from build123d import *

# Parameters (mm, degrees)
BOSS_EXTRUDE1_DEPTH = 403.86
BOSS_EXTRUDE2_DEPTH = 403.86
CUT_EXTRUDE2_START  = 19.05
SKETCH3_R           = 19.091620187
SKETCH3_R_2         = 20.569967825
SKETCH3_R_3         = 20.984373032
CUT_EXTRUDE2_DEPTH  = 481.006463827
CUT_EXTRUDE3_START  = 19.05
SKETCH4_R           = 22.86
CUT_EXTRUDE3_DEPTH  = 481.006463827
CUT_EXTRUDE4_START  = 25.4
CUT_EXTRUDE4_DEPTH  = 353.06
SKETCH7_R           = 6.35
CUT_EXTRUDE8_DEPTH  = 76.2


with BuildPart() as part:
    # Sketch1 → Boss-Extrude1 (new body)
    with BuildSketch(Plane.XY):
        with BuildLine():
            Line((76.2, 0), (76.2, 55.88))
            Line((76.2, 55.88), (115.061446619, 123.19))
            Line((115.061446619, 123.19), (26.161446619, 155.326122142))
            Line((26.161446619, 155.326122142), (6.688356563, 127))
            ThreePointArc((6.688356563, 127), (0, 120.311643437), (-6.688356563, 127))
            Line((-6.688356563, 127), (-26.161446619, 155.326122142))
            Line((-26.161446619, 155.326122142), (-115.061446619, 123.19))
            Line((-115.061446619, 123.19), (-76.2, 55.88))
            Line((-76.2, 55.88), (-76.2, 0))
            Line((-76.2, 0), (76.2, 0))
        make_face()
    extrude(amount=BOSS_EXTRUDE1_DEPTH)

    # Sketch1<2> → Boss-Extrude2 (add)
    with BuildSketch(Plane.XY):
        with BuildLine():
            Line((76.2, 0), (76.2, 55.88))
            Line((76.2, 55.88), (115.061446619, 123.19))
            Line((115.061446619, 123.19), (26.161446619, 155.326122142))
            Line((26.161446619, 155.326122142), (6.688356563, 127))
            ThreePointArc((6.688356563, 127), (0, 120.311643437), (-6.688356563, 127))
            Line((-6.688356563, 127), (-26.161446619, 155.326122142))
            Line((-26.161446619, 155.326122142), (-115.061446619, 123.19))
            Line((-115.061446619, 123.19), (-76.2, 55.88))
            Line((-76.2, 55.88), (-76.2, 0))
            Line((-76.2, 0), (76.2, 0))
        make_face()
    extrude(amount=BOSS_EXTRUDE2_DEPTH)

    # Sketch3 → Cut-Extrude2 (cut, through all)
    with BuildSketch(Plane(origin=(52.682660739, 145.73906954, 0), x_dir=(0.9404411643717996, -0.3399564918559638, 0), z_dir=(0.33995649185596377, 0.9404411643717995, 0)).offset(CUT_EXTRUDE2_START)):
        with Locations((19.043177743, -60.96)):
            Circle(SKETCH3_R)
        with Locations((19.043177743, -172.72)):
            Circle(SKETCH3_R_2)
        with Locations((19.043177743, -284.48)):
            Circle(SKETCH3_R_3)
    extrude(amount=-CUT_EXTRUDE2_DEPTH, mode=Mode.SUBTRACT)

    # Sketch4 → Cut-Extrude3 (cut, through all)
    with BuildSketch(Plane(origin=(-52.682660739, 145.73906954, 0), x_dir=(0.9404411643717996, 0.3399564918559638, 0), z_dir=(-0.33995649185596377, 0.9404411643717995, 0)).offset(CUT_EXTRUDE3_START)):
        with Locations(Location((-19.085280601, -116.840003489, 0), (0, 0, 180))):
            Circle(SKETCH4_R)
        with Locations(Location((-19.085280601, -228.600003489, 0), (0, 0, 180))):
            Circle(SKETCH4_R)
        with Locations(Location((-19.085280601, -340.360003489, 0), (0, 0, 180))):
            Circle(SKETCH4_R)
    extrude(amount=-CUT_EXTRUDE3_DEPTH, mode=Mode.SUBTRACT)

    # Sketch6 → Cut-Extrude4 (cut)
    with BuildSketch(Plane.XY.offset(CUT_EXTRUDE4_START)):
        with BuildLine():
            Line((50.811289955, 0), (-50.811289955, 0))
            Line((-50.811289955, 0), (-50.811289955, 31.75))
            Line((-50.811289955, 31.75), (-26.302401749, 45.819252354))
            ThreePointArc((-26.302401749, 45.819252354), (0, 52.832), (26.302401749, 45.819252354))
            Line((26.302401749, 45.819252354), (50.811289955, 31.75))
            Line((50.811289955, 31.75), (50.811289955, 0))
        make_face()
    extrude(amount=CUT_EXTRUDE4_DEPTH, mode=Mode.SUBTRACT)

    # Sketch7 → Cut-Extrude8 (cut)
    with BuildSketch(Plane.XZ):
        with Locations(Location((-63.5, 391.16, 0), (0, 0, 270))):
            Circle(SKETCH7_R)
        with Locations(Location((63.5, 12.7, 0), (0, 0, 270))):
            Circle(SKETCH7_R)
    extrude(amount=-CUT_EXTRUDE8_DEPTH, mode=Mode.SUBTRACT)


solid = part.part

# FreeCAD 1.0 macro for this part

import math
import FreeCAD as App
import Part
import Sketcher
from FreeCAD import Vector
Q = App.Units.Quantity

doc = App.newDocument("Part")
body = doc.addObject("PartDesign::Body", "Body")

# Sketch on XY plane
sketch1 = body.newObject("Sketcher::SketchObject", "Sketch")
sketch1.AttachmentSupport = (doc.getObject("XY_Plane"), [""])
sketch1.MapMode = "FlatFace"
sketch1.addGeometry([
    Part.LineSegment(Vector(76, 0, 0), Vector(76, 56, 0)),  # 0
    Part.LineSegment(Vector(76, 56, 0), Vector(115, 123, 0)),  # 1
    Part.LineSegment(Vector(115, 123, 0), Vector(26, 155, 0)),  # 2
    Part.LineSegment(Vector(26, 155, 0), Vector(7, 127, 0)),  # 3
    Part.ArcOfCircle(Part.Circle(Vector(0, 127, 0), Vector(0, 0, 1), 7), math.radians(180), math.radians(360)),  # 4
    Part.LineSegment(Vector(-7, 127, 0), Vector(-26, 155, 0)),  # 5
    Part.LineSegment(Vector(-26, 155, 0), Vector(-115, 123, 0)),  # 6
    Part.LineSegment(Vector(-115, 123, 0), Vector(-76, 56, 0)),  # 7
    Part.LineSegment(Vector(-76, 56, 0), Vector(-76, 0, 0)),  # 8
    Part.LineSegment(Vector(-76, 0, 0), Vector(76, 0, 0)),  # 9
], False)
sketch1.addConstraint([
    Sketcher.Constraint("Coincident", 0, 2, 1, 1),
    Sketcher.Constraint("Coincident", 1, 2, 2, 1),
    Sketcher.Constraint("Coincident", 2, 2, 3, 1),
    Sketcher.Constraint("Coincident", 3, 2, 4, 2),
    Sketcher.Constraint("Coincident", 4, 1, 5, 1),
    Sketcher.Constraint("Coincident", 5, 2, 6, 1),
    Sketcher.Constraint("Coincident", 6, 2, 7, 1),
    Sketcher.Constraint("Coincident", 7, 2, 8, 1),
    Sketcher.Constraint("Coincident", 8, 2, 9, 1),
    Sketcher.Constraint("Coincident", 9, 2, 0, 1),
    Sketcher.Constraint("Vertical", 0),
    Sketcher.Constraint("Vertical", 8),
    Sketcher.Constraint("Horizontal", 9),
    Sketcher.Constraint("Symmetric", 8, 2, 9, 2, -1, 1),
    Sketcher.Constraint("Symmetric", 3, 2, 4, 1, -2),
    Sketcher.Constraint("Symmetric", 2, 2, 5, 2, -2),
    Sketcher.Constraint("Symmetric", 1, 2, 6, 2, -2),
    Sketcher.Constraint("Horizontal", 4, 3, 3, 2),
    Sketcher.Constraint("Horizontal", 0, 2, 7, 2),
    Sketcher.Constraint("DistanceX", 9, 1, 9, 2, Q("6 in")),
    Sketcher.Constraint("DistanceY", 0, 1, 0, 2, Q("2.2 in")),
    Sketcher.Constraint("DistanceY", -1, 1, 4, 3, Q("5 in")),
    Sketcher.Constraint("Angle", 1, Q("60 deg")),
    Sketcher.Constraint("DistanceX", 2, 2, 1, 2, Q("3.5 in")),
    Sketcher.Constraint("DistanceY", -1, 1, 1, 2, Q("4.85 in")),
    Sketcher.Constraint("Radius", 4, 6.688357),
    Sketcher.Constraint("Distance", 3, 34.373979),
])
pad1 = body.newObject("PartDesign::Pad", "Pad")
pad1.Profile = sketch1
pad1.Length = Q("15.9 in")

# Sketch on XY plane
sketch2 = body.newObject("Sketcher::SketchObject", "Sketch001")
sketch2.AttachmentSupport = (doc.getObject("XY_Plane"), [""])
sketch2.MapMode = "FlatFace"
sketch2.addGeometry([
    Part.LineSegment(Vector(76, 0, 0), Vector(76, 56, 0)),  # 0
    Part.LineSegment(Vector(76, 56, 0), Vector(115, 123, 0)),  # 1
    Part.LineSegment(Vector(115, 123, 0), Vector(26, 155, 0)),  # 2
    Part.LineSegment(Vector(26, 155, 0), Vector(7, 127, 0)),  # 3
    Part.ArcOfCircle(Part.Circle(Vector(0, 127, 0), Vector(0, 0, 1), 7), math.radians(180), math.radians(360)),  # 4
    Part.LineSegment(Vector(-7, 127, 0), Vector(-26, 155, 0)),  # 5
    Part.LineSegment(Vector(-26, 155, 0), Vector(-115, 123, 0)),  # 6
    Part.LineSegment(Vector(-115, 123, 0), Vector(-76, 56, 0)),  # 7
    Part.LineSegment(Vector(-76, 56, 0), Vector(-76, 0, 0)),  # 8
    Part.LineSegment(Vector(-76, 0, 0), Vector(76, 0, 0)),  # 9
], False)
sketch2.addConstraint([
    Sketcher.Constraint("Coincident", 0, 2, 1, 1),
    Sketcher.Constraint("Coincident", 1, 2, 2, 1),
    Sketcher.Constraint("Coincident", 2, 2, 3, 1),
    Sketcher.Constraint("Coincident", 3, 2, 4, 2),
    Sketcher.Constraint("Coincident", 4, 1, 5, 1),
    Sketcher.Constraint("Coincident", 5, 2, 6, 1),
    Sketcher.Constraint("Coincident", 6, 2, 7, 1),
    Sketcher.Constraint("Coincident", 7, 2, 8, 1),
    Sketcher.Constraint("Coincident", 8, 2, 9, 1),
    Sketcher.Constraint("Coincident", 9, 2, 0, 1),
    Sketcher.Constraint("Vertical", 0),
    Sketcher.Constraint("Vertical", 8),
    Sketcher.Constraint("Horizontal", 9),
    Sketcher.Constraint("Symmetric", 8, 2, 9, 2, -1, 1),
    Sketcher.Constraint("Symmetric", 3, 2, 4, 1, -2),
    Sketcher.Constraint("Symmetric", 2, 2, 5, 2, -2),
    Sketcher.Constraint("Symmetric", 1, 2, 6, 2, -2),
    Sketcher.Constraint("Horizontal", 4, 3, 3, 2),
    Sketcher.Constraint("Horizontal", 0, 2, 7, 2),
    Sketcher.Constraint("DistanceX", 9, 1, 9, 2, Q("6 in")),
    Sketcher.Constraint("DistanceY", 0, 1, 0, 2, Q("2.2 in")),
    Sketcher.Constraint("DistanceY", -1, 1, 4, 3, Q("5 in")),
    Sketcher.Constraint("Angle", 1, Q("60 deg")),
    Sketcher.Constraint("DistanceX", 2, 2, 1, 2, Q("3.5 in")),
    Sketcher.Constraint("DistanceY", -1, 1, 1, 2, Q("4.85 in")),
    Sketcher.Constraint("Radius", 4, 6.688357),
    Sketcher.Constraint("Distance", 3, 34.373979),
])
pad2 = body.newObject("PartDesign::Pad", "Pad001")
pad2.Profile = sketch2
pad2.Length = Q("15.9 in")

# Sketch on an angled plane
sketch3 = body.newObject("Sketcher::SketchObject", "Sketch002")
sketch3.Placement = App.Placement(Vector(59.158832, 163.654474, 0), App.Rotation(Vector(0.940441164, -0.339956492, 0), Vector(0, 0, -0.999999999), Vector(0.339956492, 0.940441164, 0), "ZXY"))
sketch3.addGeometry([
    Part.Circle(Vector(19, -61, 0), Vector(0, 0, 1), 19),
    Part.Circle(Vector(19, -173, 0), Vector(0, 0, 1), 21),
    Part.Circle(Vector(19, -284, 0), Vector(0, 0, 1), 21),
], False)
sketch3.addConstraint([
    Sketcher.Constraint("Vertical", 0, 3, 1, 3),
    Sketcher.Constraint("Vertical", 1, 3, 2, 3),
    Sketcher.Constraint("DistanceY", 0, 3, -1, 1, Q("2.4 in")),
    Sketcher.Constraint("DistanceY", 1, 3, -1, 1, Q("6.8 in")),
    Sketcher.Constraint("DistanceY", 2, 3, -1, 1, Q("11.2 in")),
    Sketcher.Constraint("Diameter", 0, 38.18324),
    Sketcher.Constraint("Diameter", 1, 41.139936),
    Sketcher.Constraint("Diameter", 2, 41.968746),
    Sketcher.Constraint("DistanceX", -1, 1, 0, 3, 19.043178),
])
pocket1 = body.newObject("PartDesign::Pocket", "Pocket")
pocket1.Profile = sketch3
pocket1.Type = "ThroughAll"

# Sketch on an angled plane
sketch4 = body.newObject("Sketcher::SketchObject", "Sketch003")
sketch4.Placement = App.Placement(Vector(-59.158832, 163.654474, 0), App.Rotation(Vector(0.940441164, 0.339956492, 0), Vector(0, 0, -0.999999999), Vector(-0.339956492, 0.940441164, 0), "ZXY"))
sketch4.addGeometry([
    Part.Circle(Vector(-19, -117, 0), Vector(0, 0, 1), 23),
    Part.Circle(Vector(-19, -229, 0), Vector(0, 0, 1), 23),
    Part.Circle(Vector(-19, -340, 0), Vector(0, 0, 1), 23),
], False)
sketch4.addConstraint([
    Sketcher.Constraint("Equal", 0, 1),
    Sketcher.Constraint("Equal", 1, 2),
    Sketcher.Constraint("Vertical", 0, 3, 1, 3),
    Sketcher.Constraint("Vertical", 1, 3, 2, 3),
    Sketcher.Constraint("Diameter", 0, Q("1.8 in")),
    Sketcher.Constraint("DistanceY", 1, 3, -1, 1, Q("9.0000001 in")),
    Sketcher.Constraint("DistanceY", 0, 3, -1, 1, Q("4.6000001 in")),
    Sketcher.Constraint("DistanceY", 2, 3, -1, 1, Q("13.4000001 in")),
    Sketcher.Constraint("DistanceX", 0, 3, -1, 1, 19.085281),
])
pocket2 = body.newObject("PartDesign::Pocket", "Pocket001")
pocket2.Profile = sketch4
pocket2.Type = "ThroughAll"

# Sketch on XY plane
sketch5 = body.newObject("Sketcher::SketchObject", "Sketch004")
sketch5.AttachmentSupport = (doc.getObject("XY_Plane"), [""])
sketch5.MapMode = "FlatFace"
sketch5.AttachmentOffset = App.Placement(Vector(0, 0, 1 * 25.4), App.Rotation())
sketch5.addGeometry([
    Part.LineSegment(Vector(-51, 0, 0), Vector(51, 0, 0)),  # 0
    Part.LineSegment(Vector(51, 0, 0), Vector(51, 32, 0)),  # 1
    Part.LineSegment(Vector(51, 32, 0), Vector(26, 46, 0)),  # 2
    Part.ArcOfCircle(Part.Circle(Vector(0, 0, 0), Vector(0, 0, 1), 53), math.radians(60), math.radians(120)),  # 3
    Part.LineSegment(Vector(-26, 46, 0), Vector(-51, 32, 0)),  # 4
    Part.LineSegment(Vector(-51, 32, 0), Vector(-51, 0, 0)),  # 5
], False)
sketch5.addConstraint([
    Sketcher.Constraint("Coincident", 0, 2, 1, 1),
    Sketcher.Constraint("Coincident", 1, 2, 2, 1),
    Sketcher.Constraint("Tangent", 2, 2, 3, 1),
    Sketcher.Constraint("Tangent", 3, 2, 4, 1),
    Sketcher.Constraint("Coincident", 4, 2, 5, 1),
    Sketcher.Constraint("Coincident", 5, 2, 0, 1),
    Sketcher.Constraint("Horizontal", 0),
    Sketcher.Constraint("Vertical", 1),
    Sketcher.Constraint("Vertical", 5),
    Sketcher.Constraint("Coincident", 3, 3, -1, 1),
    Sketcher.Constraint("Symmetric", 0, 2, 5, 2, -1, 1),
    Sketcher.Constraint("Horizontal", 2, 2, 3, 2),
    Sketcher.Constraint("Radius", 3, Q("2.08 in")),
    Sketcher.Constraint("DistanceY", 1, 1, 1, 2, Q("1.25 in")),
    Sketcher.Constraint("DistanceX", 0, 1, 0, 2, 101.62258),
])
pocket3 = body.newObject("PartDesign::Pocket", "Pocket002")
pocket3.Profile = sketch5
pocket3.Length = Q("13.9 in")
pocket3.Reversed = True

# Sketch on XZ plane
sketch6 = body.newObject("Sketcher::SketchObject", "Sketch005")
sketch6.AttachmentSupport = (doc.getObject("XZ_Plane"), [""])
sketch6.MapMode = "FlatFace"
sketch6.addGeometry([
    Part.Circle(Vector(-64, 391, 0), Vector(0, 0, 1), 6),
    Part.Circle(Vector(64, 13, 0), Vector(0, 0, 1), 6),
], False)
sketch6.addConstraint([
    Sketcher.Constraint("Equal", 0, 1),
    Sketcher.Constraint("Diameter", 0, Q("0.5 in")),
    Sketcher.Constraint("DistanceX", 0, 3, 1, 3, Q("5 in")),
    Sketcher.Constraint("DistanceX", 0, 3, -1, 1, Q("2.5 in")),
    Sketcher.Constraint("DistanceY", -1, 1, 0, 3, Q("15.4 in")),
    Sketcher.Constraint("DistanceY", -1, 1, 1, 3, Q("0.5 in")),
])
pocket4 = body.newObject("PartDesign::Pocket", "Pocket003")
pocket4.Profile = sketch6
pocket4.Length = Q("3 in")

doc.recompute()
